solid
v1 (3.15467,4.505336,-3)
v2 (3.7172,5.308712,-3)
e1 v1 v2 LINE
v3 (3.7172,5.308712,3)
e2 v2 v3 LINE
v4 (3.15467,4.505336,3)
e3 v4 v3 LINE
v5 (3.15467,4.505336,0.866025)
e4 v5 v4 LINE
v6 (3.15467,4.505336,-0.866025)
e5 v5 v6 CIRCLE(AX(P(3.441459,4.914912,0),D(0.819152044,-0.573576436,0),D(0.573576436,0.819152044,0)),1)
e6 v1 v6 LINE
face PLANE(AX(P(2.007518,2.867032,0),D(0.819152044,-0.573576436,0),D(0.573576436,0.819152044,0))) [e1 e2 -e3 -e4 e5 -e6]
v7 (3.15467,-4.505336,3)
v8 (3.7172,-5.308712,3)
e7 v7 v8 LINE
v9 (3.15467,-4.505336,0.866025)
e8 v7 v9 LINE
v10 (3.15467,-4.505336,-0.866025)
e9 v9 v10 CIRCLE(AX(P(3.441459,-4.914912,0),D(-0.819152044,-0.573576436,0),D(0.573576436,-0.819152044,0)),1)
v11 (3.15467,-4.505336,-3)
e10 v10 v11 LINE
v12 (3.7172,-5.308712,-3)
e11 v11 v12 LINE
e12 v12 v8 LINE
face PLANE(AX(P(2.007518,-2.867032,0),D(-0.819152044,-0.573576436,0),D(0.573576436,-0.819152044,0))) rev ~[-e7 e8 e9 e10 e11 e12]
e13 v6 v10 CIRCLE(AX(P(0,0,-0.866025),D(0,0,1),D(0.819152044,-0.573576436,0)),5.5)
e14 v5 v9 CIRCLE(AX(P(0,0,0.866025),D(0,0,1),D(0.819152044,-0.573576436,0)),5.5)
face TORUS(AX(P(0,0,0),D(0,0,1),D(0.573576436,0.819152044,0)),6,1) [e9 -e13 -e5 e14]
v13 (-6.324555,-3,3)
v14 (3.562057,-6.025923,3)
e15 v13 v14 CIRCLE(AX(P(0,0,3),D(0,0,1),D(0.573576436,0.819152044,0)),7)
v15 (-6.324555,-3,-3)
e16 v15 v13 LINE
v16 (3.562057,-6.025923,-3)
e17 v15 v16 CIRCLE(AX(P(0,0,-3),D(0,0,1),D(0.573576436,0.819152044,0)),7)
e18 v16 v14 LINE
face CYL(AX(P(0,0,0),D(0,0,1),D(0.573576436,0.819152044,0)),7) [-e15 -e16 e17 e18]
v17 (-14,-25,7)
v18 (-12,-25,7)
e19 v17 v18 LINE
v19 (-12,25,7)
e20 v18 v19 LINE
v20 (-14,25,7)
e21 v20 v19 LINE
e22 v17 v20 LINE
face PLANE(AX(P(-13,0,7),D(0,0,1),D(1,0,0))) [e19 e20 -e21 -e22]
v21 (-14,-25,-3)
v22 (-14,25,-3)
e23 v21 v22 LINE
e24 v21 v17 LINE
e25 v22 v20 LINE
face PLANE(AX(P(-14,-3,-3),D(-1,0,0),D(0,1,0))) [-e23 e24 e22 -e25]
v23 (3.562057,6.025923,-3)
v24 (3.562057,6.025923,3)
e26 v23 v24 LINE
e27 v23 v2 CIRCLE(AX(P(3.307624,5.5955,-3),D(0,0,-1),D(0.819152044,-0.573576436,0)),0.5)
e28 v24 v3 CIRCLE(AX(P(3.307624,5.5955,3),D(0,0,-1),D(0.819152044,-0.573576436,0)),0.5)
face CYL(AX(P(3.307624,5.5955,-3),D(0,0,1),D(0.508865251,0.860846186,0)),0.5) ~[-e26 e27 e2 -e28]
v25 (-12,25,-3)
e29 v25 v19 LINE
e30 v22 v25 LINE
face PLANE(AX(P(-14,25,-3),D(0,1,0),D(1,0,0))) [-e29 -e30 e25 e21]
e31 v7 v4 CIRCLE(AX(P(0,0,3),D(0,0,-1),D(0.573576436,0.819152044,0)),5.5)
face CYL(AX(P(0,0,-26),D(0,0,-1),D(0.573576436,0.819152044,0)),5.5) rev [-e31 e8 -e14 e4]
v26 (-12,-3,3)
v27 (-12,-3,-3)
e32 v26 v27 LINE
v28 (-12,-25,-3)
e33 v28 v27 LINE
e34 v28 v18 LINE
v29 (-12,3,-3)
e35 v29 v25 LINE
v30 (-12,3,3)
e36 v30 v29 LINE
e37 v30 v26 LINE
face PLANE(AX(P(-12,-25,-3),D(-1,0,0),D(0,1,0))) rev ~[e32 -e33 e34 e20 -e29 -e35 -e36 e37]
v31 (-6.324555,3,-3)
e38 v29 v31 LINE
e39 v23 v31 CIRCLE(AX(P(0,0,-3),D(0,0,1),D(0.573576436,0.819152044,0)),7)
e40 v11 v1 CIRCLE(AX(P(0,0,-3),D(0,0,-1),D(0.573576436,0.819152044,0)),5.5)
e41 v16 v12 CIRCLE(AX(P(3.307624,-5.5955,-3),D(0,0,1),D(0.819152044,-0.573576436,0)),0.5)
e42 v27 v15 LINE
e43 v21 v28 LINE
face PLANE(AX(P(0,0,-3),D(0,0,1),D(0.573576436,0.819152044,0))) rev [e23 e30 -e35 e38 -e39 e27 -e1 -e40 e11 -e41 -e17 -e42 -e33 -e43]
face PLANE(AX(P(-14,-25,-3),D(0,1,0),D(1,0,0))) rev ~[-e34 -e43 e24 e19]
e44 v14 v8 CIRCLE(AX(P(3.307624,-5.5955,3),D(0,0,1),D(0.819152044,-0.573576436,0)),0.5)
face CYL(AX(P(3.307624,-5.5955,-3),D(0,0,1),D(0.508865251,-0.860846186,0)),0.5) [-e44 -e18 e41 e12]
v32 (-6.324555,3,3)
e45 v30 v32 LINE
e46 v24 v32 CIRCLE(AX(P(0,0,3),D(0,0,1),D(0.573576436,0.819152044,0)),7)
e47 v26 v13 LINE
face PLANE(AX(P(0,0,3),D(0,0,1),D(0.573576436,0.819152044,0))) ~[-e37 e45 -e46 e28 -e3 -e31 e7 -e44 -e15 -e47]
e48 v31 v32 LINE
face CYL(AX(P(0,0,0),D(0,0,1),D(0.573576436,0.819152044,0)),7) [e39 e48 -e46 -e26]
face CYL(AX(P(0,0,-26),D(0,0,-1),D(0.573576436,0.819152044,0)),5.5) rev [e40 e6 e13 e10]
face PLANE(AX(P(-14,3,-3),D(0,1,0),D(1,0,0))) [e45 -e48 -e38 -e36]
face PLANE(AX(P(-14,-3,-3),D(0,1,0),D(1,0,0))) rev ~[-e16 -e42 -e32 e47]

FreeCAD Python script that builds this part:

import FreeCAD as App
import Part
import Sketcher

V = App.Vector


def edges_at(feature, points):
    """Names of the edges that pass closest to the given points."""
    edges = feature.Shape.Edges
    near = lambda p: min(range(len(edges)), key=lambda i: edges[i].distToShape(Part.Vertex(*p))[0])
    return sorted({f"Edge{near(p) + 1}" for p in points})

doc = App.newDocument("Part")
body = doc.addObject("PartDesign::Body", "Body")

sketch1 = body.newObject("Sketcher::SketchObject", "Sketch")
sketch1.AttachmentSupport = (doc.getObject("XZ_Plane"), [""])
sketch1.MapMode = "FlatFace"
sketch1.addGeometry(Part.Circle(V(6, 26, 0), V(0, 0, 1), 1), False)
sketch1.addConstraint(Sketcher.Constraint("Diameter", 0, 2.0))
sketch1.addConstraint(Sketcher.Constraint("DistanceX", -1, 1, 0, 3, 6.0))
sketch1.addConstraint(Sketcher.Constraint("DistanceY", -1, 1, 0, 3, 26.0))
revolution = body.newObject("PartDesign::Revolution", "Revolution")
revolution.Profile = sketch1
revolution.ReferenceAxis = (sketch1, ["V_Axis"])
revolution.Angle = 360
body2 = doc.addObject("PartDesign::Body", "Body001")

sketch2 = body2.newObject("Sketcher::SketchObject", "Sketch001")
sketch2.AttachmentSupport = (doc.getObject("XY_Plane001"), [""])
sketch2.MapMode = "FlatFace"
sketch2.addGeometry(Part.Circle(V(0, 0, 0), V(0, 0, 1), 6), False)
sketch2.addConstraint(Sketcher.Constraint("Coincident", 0, 3, -1, 1))
sketch2.addConstraint(Sketcher.Constraint("Diameter", 0, 11.0))
pad1 = body2.newObject("PartDesign::Pad", "Pad")
pad1.Profile = sketch2
pad1.Length = 36
doc.recompute()

fillet = body2.newObject("PartDesign::Fillet", "Fillet")
fillet.Base = (pad1, edges_at(pad1, [(-5.5, 0, 36)]))
fillet.Radius = 4
doc.recompute()

boolean = body2.newObject("PartDesign::Boolean", "Boolean")
boolean.Type = "Cut"
boolean.addObjects([body])
body3 = doc.addObject("PartDesign::Body", "Body002")

sketch3 = body3.newObject("Sketcher::SketchObject", "Sketch002")
sketch3.AttachmentSupport = (doc.getObject("XZ_Plane002"), [""])
sketch3.MapMode = "FlatFace"
sketch3.addGeometry(Part.LineSegment(V(0, 10, 0), V(0, 4, 0)), False)
sketch3.addGeometry(Part.LineSegment(V(0, 4, 0), V(7, 4, 0)), False)
sketch3.addGeometry(Part.LineSegment(V(7, 4, 0), V(7, 10, 0)), False)
sketch3.addGeometry(Part.LineSegment(V(7, 10, 0), V(0, 10, 0)), False)
sketch3.addConstraint(Sketcher.Constraint("Coincident", 0, 2, 1, 1))
sketch3.addConstraint(Sketcher.Constraint("Coincident", 1, 2, 2, 1))
sketch3.addConstraint(Sketcher.Constraint("Coincident", 2, 2, 3, 1))
sketch3.addConstraint(Sketcher.Constraint("Coincident", 3, 2, 0, 1))
sketch3.addConstraint(Sketcher.Constraint("Vertical", 0))
sketch3.addConstraint(Sketcher.Constraint("Horizontal", 1))
sketch3.addConstraint(Sketcher.Constraint("Vertical", 2))
sketch3.addConstraint(Sketcher.Constraint("Horizontal", 3))
sketch3.addConstraint(Sketcher.Constraint("PointOnObject", 0, 2, -2))
sketch3.addConstraint(Sketcher.Constraint("DistanceX", 1, 1, 1, 2, 7.0))
sketch3.addConstraint(Sketcher.Constraint("DistanceY", 0, 2, 0, 1, 6.0))
sketch3.addConstraint(Sketcher.Constraint("DistanceY", -1, 1, 0, 2, 4.0))
revolution2 = body3.newObject("PartDesign::Revolution", "Revolution001")
revolution2.Profile = sketch3
revolution2.ReferenceAxis = (sketch3, ["V_Axis"])
revolution2.Angle = 250
doc.recompute()

fillet2 = body3.newObject("PartDesign::Fillet", "Fillet001")
fillet2.Base = (revolution2, edges_at(revolution2, [(-2.394, -6.578, 7), (7, 0, 7)]))
fillet2.Radius = 0.5
body4 = doc.addObject("PartDesign::Body", "Body003")
doc.recompute()

body3.Placement = App.Placement(V(0, 0, 19), App.Rotation(V(0, 0, 1), 0))
boolean2 = body4.newObject("PartDesign::Boolean", "Boolean001")
boolean2.Type = "Fuse"
boolean2.addObjects([body3])
doc.recompute()

boolean3 = body4.newObject("PartDesign::Boolean", "Boolean002")
boolean3.Type = "Cut"
boolean3.addObjects([body2])
body5 = doc.addObject("PartDesign::Body", "Body004")
doc.recompute()

body4.Placement = App.Placement(V(0, 0, -26), App.Rotation(V(0, 0, 1), 55))
boolean4 = body5.newObject("PartDesign::Boolean", "Boolean003")
boolean4.Type = "Fuse"
boolean4.addObjects([body4])
body6 = doc.addObject("PartDesign::Body", "Body005")

sketch4 = body6.newObject("Sketcher::SketchObject", "Sketch003")
sketch4.AttachmentSupport = (doc.getObject("XY_Plane005"), [""])
sketch4.MapMode = "FlatFace"
sketch4.AttachmentOffset = App.Placement(V(0, 0, -3), App.Rotation())
sketch4.addGeometry(Part.LineSegment(V(-14, 3, 0), V(-14, -3, 0)), False)
sketch4.addGeometry(Part.LineSegment(V(-14, -3, 0), V(-6, -3, 0)), False)
sketch4.addGeometry(Part.LineSegment(V(-6, -3, 0), V(-6, 3, 0)), False)
sketch4.addGeometry(Part.LineSegment(V(-6, 3, 0), V(-14, 3, 0)), False)
sketch4.addConstraint(Sketcher.Constraint("Coincident", 0, 2, 1, 1))
sketch4.addConstraint(Sketcher.Constraint("Coincident", 1, 2, 2, 1))
sketch4.addConstraint(Sketcher.Constraint("Coincident", 2, 2, 3, 1))
sketch4.addConstraint(Sketcher.Constraint("Coincident", 3, 2, 0, 1))
sketch4.addConstraint(Sketcher.Constraint("Vertical", 0))
sketch4.addConstraint(Sketcher.Constraint("Horizontal", 1))
sketch4.addConstraint(Sketcher.Constraint("Vertical", 2))
sketch4.addConstraint(Sketcher.Constraint("Horizontal", 3))
sketch4.addConstraint(Sketcher.Constraint("DistanceX", 1, 1, 1, 2, 8.0))
sketch4.addConstraint(Sketcher.Constraint("DistanceY", 0, 2, 0, 1, 6.0))
sketch4.addConstraint(Sketcher.Constraint("DistanceX", 0, 2, -1, 1, 14.0))
sketch4.addConstraint(Sketcher.Constraint("DistanceY", 0, 2, -1, 1, 3.0))
pad2 = body6.newObject("PartDesign::Pad", "Pad001")
pad2.Profile = sketch4
pad2.Length = 6
doc.recompute()

boolean5 = body6.newObject("PartDesign::Boolean", "Boolean004")
boolean5.Type = "Fuse"
boolean5.addObjects([body5])
body7 = doc.addObject("PartDesign::Body", "Body006")

sketch5 = body7.newObject("Sketcher::SketchObject", "Sketch004")
sketch5.AttachmentSupport = (doc.getObject("XY_Plane006"), [""])
sketch5.MapMode = "FlatFace"
sketch5.AttachmentOffset = App.Placement(V(0, 0, -3), App.Rotation())
sketch5.addGeometry(Part.LineSegment(V(-14, 25, 0), V(-14, -25, 0)), False)
sketch5.addGeometry(Part.LineSegment(V(-14, -25, 0), V(-12, -25, 0)), False)
sketch5.addGeometry(Part.LineSegment(V(-12, -25, 0), V(-12, 25, 0)), False)
sketch5.addGeometry(Part.LineSegment(V(-12, 25, 0), V(-14, 25, 0)), False)
sketch5.addConstraint(Sketcher.Constraint("Coincident", 0, 2, 1, 1))
sketch5.addConstraint(Sketcher.Constraint("Coincident", 1, 2, 2, 1))
sketch5.addConstraint(Sketcher.Constraint("Coincident", 2, 2, 3, 1))
sketch5.addConstraint(Sketcher.Constraint("Coincident", 3, 2, 0, 1))
sketch5.addConstraint(Sketcher.Constraint("Vertical", 0))
sketch5.addConstraint(Sketcher.Constraint("Horizontal", 1))
sketch5.addConstraint(Sketcher.Constraint("Vertical", 2))
sketch5.addConstraint(Sketcher.Constraint("Horizontal", 3))
sketch5.addConstraint(Sketcher.Constraint("DistanceX", 1, 1, 1, 2, 2.0))
sketch5.addConstraint(Sketcher.Constraint("DistanceY", 0, 2, 0, 1, 50.0))
sketch5.addConstraint(Sketcher.Constraint("DistanceX", 0, 2, -1, 1, 14.0))
sketch5.addConstraint(Sketcher.Constraint("DistanceY", 0, 2, -1, 1, 25.0))
pad3 = body7.newObject("PartDesign::Pad", "Pad002")
pad3.Profile = sketch5
pad3.Length = 10
doc.recompute()

boolean6 = body7.newObject("PartDesign::Boolean", "Boolean005")
boolean6.Type = "Fuse"
boolean6.addObjects([body6])

doc.recompute()
